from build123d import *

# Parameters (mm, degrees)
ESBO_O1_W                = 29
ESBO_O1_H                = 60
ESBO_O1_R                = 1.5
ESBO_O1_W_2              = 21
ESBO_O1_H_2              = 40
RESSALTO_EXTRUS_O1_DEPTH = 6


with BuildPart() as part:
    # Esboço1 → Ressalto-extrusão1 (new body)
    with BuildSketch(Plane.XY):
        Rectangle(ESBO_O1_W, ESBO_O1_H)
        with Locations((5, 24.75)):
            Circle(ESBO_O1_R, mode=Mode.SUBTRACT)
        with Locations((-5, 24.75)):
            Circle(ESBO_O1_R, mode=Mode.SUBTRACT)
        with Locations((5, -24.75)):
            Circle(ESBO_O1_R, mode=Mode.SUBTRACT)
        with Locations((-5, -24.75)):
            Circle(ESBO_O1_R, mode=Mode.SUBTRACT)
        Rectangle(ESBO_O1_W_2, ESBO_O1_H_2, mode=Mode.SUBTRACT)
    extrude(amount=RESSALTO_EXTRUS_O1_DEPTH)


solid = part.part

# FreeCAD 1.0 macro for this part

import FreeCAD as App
import Part
import Sketcher

V = App.Vector

doc = App.newDocument("Part")
params = doc.addObject("Spreadsheet::Sheet", "Params")
for row, (alias, value) in enumerate([
    ("sketch1_diameter", "3 mm"),
    ("sketch1_width", "29 mm"),
    ("sketch1_width2", "21 mm"),
    ("sketch1_height", "60 mm"),
    ("sketch1_height2", "40 mm"),
    ("pad1_length", "6 mm"),
], start=1):
    params.set(f"A{row}", alias)
    params.set(f"B{row}", "=" + value)
    params.setAlias(f"B{row}", alias)

body = doc.addObject("PartDesign::Body", "Body")

# Sketch on XY plane
sketch1 = body.newObject("Sketcher::SketchObject", "Sketch")
sketch1.AttachmentSupport = (doc.getObject("XY_Plane"), [""])
sketch1.MapMode = "FlatFace"
sketch1.addGeometry([
    Part.LineSegment(V(-14.5, 30, 0), V(-14.5, -30, 0)),  # 0
    Part.LineSegment(V(-14.5, -30, 0), V(14.5, -30, 0)),  # 1
    Part.LineSegment(V(14.5, -30, 0), V(14.5, 30, 0)),  # 2
    Part.LineSegment(V(14.5, 30, 0), V(-14.5, 30, 0)),  # 3
    Part.Circle(V(-5, -24.8, 0), V(0, 0, 1), 1.5),  # 4
    Part.Circle(V(5, -24.8, 0), V(0, 0, 1), 1.5),  # 5
    Part.Circle(V(-5, 24.8, 0), V(0, 0, 1), 1.5),  # 6
    Part.LineSegment(V(10.5, -20, 0), V(-10.5, -20, 0)),  # 7
    Part.LineSegment(V(-10.5, -20, 0), V(-10.5, 20, 0)),  # 8
    Part.LineSegment(V(-10.5, 20, 0), V(10.5, 20, 0)),  # 9
    Part.LineSegment(V(10.5, 20, 0), V(10.5, -20, 0)),  # 10
    Part.Circle(V(5, 24.8, 0), V(0, 0, 1), 1.5),  # 11
], False)
sketch1.addConstraint([
    Sketcher.Constraint("Coincident", 0, 2, 1, 1),
    Sketcher.Constraint("Coincident", 1, 2, 2, 1),
    Sketcher.Constraint("Coincident", 2, 2, 3, 1),
    Sketcher.Constraint("Coincident", 3, 2, 0, 1),
    Sketcher.Constraint("Coincident", 7, 2, 8, 1),
    Sketcher.Constraint("Coincident", 8, 2, 9, 1),
    Sketcher.Constraint("Coincident", 9, 2, 10, 1),
    Sketcher.Constraint("Coincident", 10, 2, 7, 1),
    Sketcher.Constraint("Vertical", 0),
    Sketcher.Constraint("Horizontal", 1),
    Sketcher.Constraint("Vertical", 2),
    Sketcher.Constraint("Horizontal", 3),
    Sketcher.Constraint("Horizontal", 7),
    Sketcher.Constraint("Vertical", 8),
    Sketcher.Constraint("Horizontal", 9),
    Sketcher.Constraint("Vertical", 10),
    Sketcher.Constraint("Equal", 4, 5),
    Sketcher.Constraint("Equal", 5, 6),
    Sketcher.Constraint("Equal", 6, 11),
    Sketcher.Constraint("Symmetric", 5, 3, 6, 3, -1, 1),
    Sketcher.Constraint("Symmetric", 4, 3, 11, 3, -1, 1),
    Sketcher.Constraint("Symmetric", 0, 2, 2, 2, -1, 1),
    Sketcher.Constraint("Symmetric", 7, 2, 9, 2, -1, 1),
    Sketcher.Constraint("Symmetric", 4, 3, 5, 3, -2),
    Sketcher.Constraint("Diameter", 4, 3.0),
    Sketcher.Constraint("DistanceX", 1, 1, 1, 2, 29.0),
    Sketcher.Constraint("DistanceX", 7, 2, 7, 1, 21.0),
    Sketcher.Constraint("DistanceY", 0, 2, 0, 1, 60.0),
    Sketcher.Constraint("DistanceY", 8, 1, 8, 2, 40.0),
    Sketcher.Constraint("DistanceX", 4, 3, -1, 1, 5.0),
    Sketcher.Constraint("DistanceY", 4, 3, 6, 3, 49.5),
])
sketch1.setExpression("Constraints[24]", "Params.sketch1_diameter")
sketch1.setExpression("Constraints[25]", "Params.sketch1_width")
sketch1.setExpression("Constraints[26]", "Params.sketch1_width2")
sketch1.setExpression("Constraints[27]", "Params.sketch1_height")
sketch1.setExpression("Constraints[28]", "Params.sketch1_height2")
pad1 = body.newObject("PartDesign::Pad", "Pad")
pad1.Profile = sketch1
pad1.setExpression("Length", "Params.pad1_length")

doc.recompute()
